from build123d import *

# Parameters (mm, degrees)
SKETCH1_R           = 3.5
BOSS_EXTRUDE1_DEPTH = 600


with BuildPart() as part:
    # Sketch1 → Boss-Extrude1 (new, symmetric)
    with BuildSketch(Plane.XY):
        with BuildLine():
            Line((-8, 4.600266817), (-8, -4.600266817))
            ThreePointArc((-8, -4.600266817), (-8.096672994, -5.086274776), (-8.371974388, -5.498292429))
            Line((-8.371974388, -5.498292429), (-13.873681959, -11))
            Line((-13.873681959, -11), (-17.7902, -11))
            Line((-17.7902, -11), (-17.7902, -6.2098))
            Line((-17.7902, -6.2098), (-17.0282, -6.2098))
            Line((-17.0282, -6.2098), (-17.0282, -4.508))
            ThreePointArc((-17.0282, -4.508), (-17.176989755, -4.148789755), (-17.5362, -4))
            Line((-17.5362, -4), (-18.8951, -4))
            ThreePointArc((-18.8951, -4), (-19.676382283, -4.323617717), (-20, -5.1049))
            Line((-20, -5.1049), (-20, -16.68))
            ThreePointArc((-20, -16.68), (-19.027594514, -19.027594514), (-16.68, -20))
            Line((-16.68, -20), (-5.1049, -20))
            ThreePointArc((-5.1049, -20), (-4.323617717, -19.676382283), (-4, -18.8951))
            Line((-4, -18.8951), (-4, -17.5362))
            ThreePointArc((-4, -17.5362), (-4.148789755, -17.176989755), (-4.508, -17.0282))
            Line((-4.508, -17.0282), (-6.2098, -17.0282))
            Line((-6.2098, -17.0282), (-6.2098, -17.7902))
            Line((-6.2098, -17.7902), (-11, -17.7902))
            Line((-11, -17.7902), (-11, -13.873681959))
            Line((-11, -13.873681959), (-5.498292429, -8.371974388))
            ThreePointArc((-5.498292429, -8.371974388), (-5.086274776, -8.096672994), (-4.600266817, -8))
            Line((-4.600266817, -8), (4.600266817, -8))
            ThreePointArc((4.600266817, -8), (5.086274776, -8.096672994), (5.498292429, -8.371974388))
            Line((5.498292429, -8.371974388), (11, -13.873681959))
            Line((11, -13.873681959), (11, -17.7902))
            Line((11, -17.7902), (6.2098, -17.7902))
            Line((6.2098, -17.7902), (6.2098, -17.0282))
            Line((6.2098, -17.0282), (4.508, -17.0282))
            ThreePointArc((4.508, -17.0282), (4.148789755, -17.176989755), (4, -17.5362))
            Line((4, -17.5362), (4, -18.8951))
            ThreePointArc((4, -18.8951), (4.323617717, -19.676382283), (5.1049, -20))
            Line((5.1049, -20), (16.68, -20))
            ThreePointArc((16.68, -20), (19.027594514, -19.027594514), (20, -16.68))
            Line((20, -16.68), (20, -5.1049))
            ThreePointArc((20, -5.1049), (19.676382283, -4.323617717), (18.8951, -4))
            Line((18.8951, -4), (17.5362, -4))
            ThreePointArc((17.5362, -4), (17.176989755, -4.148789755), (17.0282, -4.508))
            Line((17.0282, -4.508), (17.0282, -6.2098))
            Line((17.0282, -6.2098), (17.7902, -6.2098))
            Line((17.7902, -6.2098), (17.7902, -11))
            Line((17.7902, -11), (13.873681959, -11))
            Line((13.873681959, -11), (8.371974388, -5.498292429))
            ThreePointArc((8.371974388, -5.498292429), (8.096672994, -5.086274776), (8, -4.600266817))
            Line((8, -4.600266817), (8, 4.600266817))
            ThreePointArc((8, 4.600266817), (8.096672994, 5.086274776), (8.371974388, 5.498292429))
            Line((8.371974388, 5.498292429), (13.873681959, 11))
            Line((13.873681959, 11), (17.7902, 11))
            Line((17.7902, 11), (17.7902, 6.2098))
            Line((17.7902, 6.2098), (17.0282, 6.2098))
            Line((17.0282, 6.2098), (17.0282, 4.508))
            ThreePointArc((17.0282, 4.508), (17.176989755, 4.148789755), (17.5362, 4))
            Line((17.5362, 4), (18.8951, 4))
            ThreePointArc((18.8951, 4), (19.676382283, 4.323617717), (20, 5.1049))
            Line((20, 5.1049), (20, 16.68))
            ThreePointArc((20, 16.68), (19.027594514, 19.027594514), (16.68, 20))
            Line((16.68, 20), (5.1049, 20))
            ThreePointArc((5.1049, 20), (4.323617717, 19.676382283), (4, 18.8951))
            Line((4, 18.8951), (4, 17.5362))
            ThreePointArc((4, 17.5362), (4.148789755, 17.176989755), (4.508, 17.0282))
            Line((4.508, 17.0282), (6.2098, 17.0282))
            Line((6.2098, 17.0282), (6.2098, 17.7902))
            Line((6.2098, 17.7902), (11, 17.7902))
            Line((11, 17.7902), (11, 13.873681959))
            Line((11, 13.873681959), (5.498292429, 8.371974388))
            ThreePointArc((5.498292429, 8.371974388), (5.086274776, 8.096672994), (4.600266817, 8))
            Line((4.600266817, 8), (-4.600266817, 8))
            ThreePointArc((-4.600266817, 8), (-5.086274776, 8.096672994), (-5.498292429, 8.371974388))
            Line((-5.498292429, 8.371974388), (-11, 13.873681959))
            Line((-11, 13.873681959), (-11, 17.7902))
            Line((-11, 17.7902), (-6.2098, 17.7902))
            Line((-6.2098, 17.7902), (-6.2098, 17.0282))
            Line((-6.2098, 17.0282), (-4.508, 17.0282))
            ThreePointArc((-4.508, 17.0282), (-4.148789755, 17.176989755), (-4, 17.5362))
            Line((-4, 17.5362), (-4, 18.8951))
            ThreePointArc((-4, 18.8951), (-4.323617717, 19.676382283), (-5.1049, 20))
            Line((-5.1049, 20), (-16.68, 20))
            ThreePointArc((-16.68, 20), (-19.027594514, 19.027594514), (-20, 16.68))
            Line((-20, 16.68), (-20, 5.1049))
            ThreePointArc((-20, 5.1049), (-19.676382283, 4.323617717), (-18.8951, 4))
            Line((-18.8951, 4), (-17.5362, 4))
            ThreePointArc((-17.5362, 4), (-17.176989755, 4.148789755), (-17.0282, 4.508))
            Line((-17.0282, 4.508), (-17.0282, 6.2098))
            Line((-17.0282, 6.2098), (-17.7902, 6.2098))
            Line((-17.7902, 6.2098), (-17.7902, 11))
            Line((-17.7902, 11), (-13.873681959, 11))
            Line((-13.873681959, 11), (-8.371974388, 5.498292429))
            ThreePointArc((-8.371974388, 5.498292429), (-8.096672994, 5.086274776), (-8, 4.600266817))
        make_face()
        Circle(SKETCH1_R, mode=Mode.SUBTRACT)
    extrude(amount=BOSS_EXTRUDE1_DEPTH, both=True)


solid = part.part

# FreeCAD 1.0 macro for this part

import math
import FreeCAD as App
import Part
import Sketcher

V = App.Vector
Q = App.Units.Quantity

doc = App.newDocument("Part")
body = doc.addObject("PartDesign::Body", "Body")

# Sketch on XY plane
sketch1 = doc.addObject("Sketcher::SketchObject", "Sketch")
body.addObject(sketch1)
sketch1.AttachmentSupport = (doc.XY_Plane, [""])
sketch1.MapMode = "FlatFace"
sketch1.addGeometry([
    Part.LineSegment(V(-8, 4.600267, 0), V(-8, -4.600267, 0)),  # 0
    Part.ArcOfCircle(Part.Circle(V(-9.27, -4.600267, 0), V(0, 0, 1), 1.27), math.radians(-45), math.radians(0)),  # 1
    Part.LineSegment(V(-8.371974, -5.498292, 0), V(-13.873682, -11, 0)),  # 2
    Part.LineSegment(V(-13.873682, -11, 0), V(-17.7902, -11, 0)),  # 3
    Part.LineSegment(V(-17.7902, -11, 0), V(-17.7902, -6.2098, 0)),  # 4
    Part.LineSegment(V(-17.7902, -6.2098, 0), V(-17.0282, -6.2098, 0)),  # 5
    Part.LineSegment(V(-17.0282, -6.2098, 0), V(-17.0282, -4.508, 0)),  # 6
    Part.ArcOfCircle(Part.Circle(V(-17.5362, -4.508, 0), V(0, 0, 1), 0.508), math.radians(0), math.radians(90)),  # 7
    Part.LineSegment(V(-17.5362, -4, 0), V(-18.8951, -4, 0)),  # 8
    Part.ArcOfCircle(Part.Circle(V(-18.8951, -5.1049, 0), V(0, 0, 1), 1.1049), math.radians(90), math.radians(180)),  # 9
    Part.LineSegment(V(-20, -5.1049, 0), V(-20, -16.68, 0)),  # 10
    Part.ArcOfCircle(Part.Circle(V(-16.68, -16.68, 0), V(0, 0, 1), 3.32), math.radians(180), math.radians(270)),  # 11
    Part.LineSegment(V(-16.68, -20, 0), V(-5.1049, -20, 0)),  # 12
    Part.ArcOfCircle(Part.Circle(V(-5.1049, -18.8951, 0), V(0, 0, 1), 1.1049), math.radians(-90), math.radians(0)),  # 13
    Part.LineSegment(V(-4, -18.8951, 0), V(-4, -17.5362, 0)),  # 14
    Part.ArcOfCircle(Part.Circle(V(-4.508, -17.5362, 0), V(0, 0, 1), 0.508), math.radians(0), math.radians(90)),  # 15
    Part.LineSegment(V(-4.508, -17.0282, 0), V(-6.2098, -17.0282, 0)),  # 16
    Part.LineSegment(V(-6.2098, -17.0282, 0), V(-6.2098, -17.7902, 0)),  # 17
    Part.LineSegment(V(-6.2098, -17.7902, 0), V(-11, -17.7902, 0)),  # 18
    Part.LineSegment(V(-11, -17.7902, 0), V(-11, -13.873682, 0)),  # 19
    Part.LineSegment(V(-11, -13.873682, 0), V(-5.498292, -8.371974, 0)),  # 20
    Part.ArcOfCircle(Part.Circle(V(-4.600267, -9.27, 0), V(0, 0, 1), 1.27), math.radians(90), math.radians(135)),  # 21
    Part.LineSegment(V(-4.600267, -8, 0), V(4.600267, -8, 0)),  # 22
    Part.ArcOfCircle(Part.Circle(V(4.600267, -9.27, 0), V(0, 0, 1), 1.27), math.radians(45), math.radians(90)),  # 23
    Part.LineSegment(V(5.498292, -8.371974, 0), V(11, -13.873682, 0)),  # 24
    Part.LineSegment(V(11, -13.873682, 0), V(11, -17.7902, 0)),  # 25
    Part.LineSegment(V(11, -17.7902, 0), V(6.2098, -17.7902, 0)),  # 26
    Part.LineSegment(V(6.2098, -17.7902, 0), V(6.2098, -17.0282, 0)),  # 27
    Part.LineSegment(V(6.2098, -17.0282, 0), V(4.508, -17.0282, 0)),  # 28
    Part.ArcOfCircle(Part.Circle(V(4.508, -17.5362, 0), V(0, 0, 1), 0.508), math.radians(90), math.radians(180)),  # 29
    Part.LineSegment(V(4, -17.5362, 0), V(4, -18.8951, 0)),  # 30
    Part.ArcOfCircle(Part.Circle(V(5.1049, -18.8951, 0), V(0, 0, 1), 1.1049), math.radians(180), math.radians(270)),  # 31
    Part.LineSegment(V(5.1049, -20, 0), V(16.68, -20, 0)),  # 32
    Part.ArcOfCircle(Part.Circle(V(16.68, -16.68, 0), V(0, 0, 1), 3.32), math.radians(-90), math.radians(0)),  # 33
    Part.LineSegment(V(20, -16.68, 0), V(20, -5.1049, 0)),  # 34
    Part.ArcOfCircle(Part.Circle(V(18.8951, -5.1049, 0), V(0, 0, 1), 1.1049), math.radians(0), math.radians(90)),  # 35
    Part.LineSegment(V(18.8951, -4, 0), V(17.5362, -4, 0)),  # 36
    Part.ArcOfCircle(Part.Circle(V(17.5362, -4.508, 0), V(0, 0, 1), 0.508), math.radians(90), math.radians(180)),  # 37
    Part.LineSegment(V(17.0282, -4.508, 0), V(17.0282, -6.2098, 0)),  # 38
    Part.LineSegment(V(17.0282, -6.2098, 0), V(17.7902, -6.2098, 0)),  # 39
    Part.LineSegment(V(17.7902, -6.2098, 0), V(17.7902, -11, 0)),  # 40
    Part.LineSegment(V(17.7902, -11, 0), V(13.873682, -11, 0)),  # 41
    Part.LineSegment(V(13.873682, -11, 0), V(8.371974, -5.498292, 0)),  # 42
    Part.ArcOfCircle(Part.Circle(V(9.27, -4.600267, 0), V(0, 0, 1), 1.27), math.radians(-180), math.radians(-135)),  # 43
    Part.LineSegment(V(8, -4.600267, 0), V(8, 4.600267, 0)),  # 44
    Part.ArcOfCircle(Part.Circle(V(9.27, 4.600267, 0), V(0, 0, 1), 1.27), math.radians(135), math.radians(180)),  # 45
    Part.LineSegment(V(8.371974, 5.498292, 0), V(13.873682, 11, 0)),  # 46
    Part.LineSegment(V(13.873682, 11, 0), V(17.7902, 11, 0)),  # 47
    Part.LineSegment(V(17.7902, 11, 0), V(17.7902, 6.2098, 0)),  # 48
    Part.LineSegment(V(17.7902, 6.2098, 0), V(17.0282, 6.2098, 0)),  # 49
    Part.LineSegment(V(17.0282, 6.2098, 0), V(17.0282, 4.508, 0)),  # 50
    Part.ArcOfCircle(Part.Circle(V(17.5362, 4.508, 0), V(0, 0, 1), 0.508), math.radians(180), math.radians(270)),  # 51
    Part.LineSegment(V(17.5362, 4, 0), V(18.8951, 4, 0)),  # 52
    Part.ArcOfCircle(Part.Circle(V(18.8951, 5.1049, 0), V(0, 0, 1), 1.1049), math.radians(-90), math.radians(0)),  # 53
    Part.LineSegment(V(20, 5.1049, 0), V(20, 16.68, 0)),  # 54
    Part.ArcOfCircle(Part.Circle(V(16.68, 16.68, 0), V(0, 0, 1), 3.32), math.radians(0), math.radians(90)),  # 55
    Part.LineSegment(V(16.68, 20, 0), V(5.1049, 20, 0)),  # 56
    Part.ArcOfCircle(Part.Circle(V(5.1049, 18.8951, 0), V(0, 0, 1), 1.1049), math.radians(90), math.radians(180)),  # 57
    Part.LineSegment(V(4, 18.8951, 0), V(4, 17.5362, 0)),  # 58
    Part.ArcOfCircle(Part.Circle(V(4.508, 17.5362, 0), V(0, 0, 1), 0.508), math.radians(180), math.radians(270)),  # 59
    Part.LineSegment(V(4.508, 17.0282, 0), V(6.2098, 17.0282, 0)),  # 60
    Part.LineSegment(V(6.2098, 17.0282, 0), V(6.2098, 17.7902, 0)),  # 61
    Part.LineSegment(V(6.2098, 17.7902, 0), V(11, 17.7902, 0)),  # 62
    Part.LineSegment(V(11, 17.7902, 0), V(11, 13.873682, 0)),  # 63
    Part.LineSegment(V(11, 13.873682, 0), V(5.498292, 8.371974, 0)),  # 64
    Part.ArcOfCircle(Part.Circle(V(4.600267, 9.27, 0), V(0, 0, 1), 1.27), math.radians(-90), math.radians(-45)),  # 65
    Part.LineSegment(V(4.600267, 8, 0), V(-4.600267, 8, 0)),  # 66
    Part.ArcOfCircle(Part.Circle(V(-4.600267, 9.27, 0), V(0, 0, 1), 1.27), math.radians(-135), math.radians(-90)),  # 67
    Part.LineSegment(V(-5.498292, 8.371974, 0), V(-11, 13.873682, 0)),  # 68
    Part.LineSegment(V(-11, 13.873682, 0), V(-11, 17.7902, 0)),  # 69
    Part.LineSegment(V(-11, 17.7902, 0), V(-6.2098, 17.7902, 0)),  # 70
    Part.LineSegment(V(-6.2098, 17.7902, 0), V(-6.2098, 17.0282, 0)),  # 71
    Part.LineSegment(V(-6.2098, 17.0282, 0), V(-4.508, 17.0282, 0)),  # 72
    Part.ArcOfCircle(Part.Circle(V(-4.508, 17.5362, 0), V(0, 0, 1), 0.508), math.radians(-90), math.radians(0)),  # 73
    Part.LineSegment(V(-4, 17.5362, 0), V(-4, 18.8951, 0)),  # 74
    Part.ArcOfCircle(Part.Circle(V(-5.1049, 18.8951, 0), V(0, 0, 1), 1.1049), math.radians(0), math.radians(90)),  # 75
    Part.LineSegment(V(-5.1049, 20, 0), V(-16.68, 20, 0)),  # 76
    Part.ArcOfCircle(Part.Circle(V(-16.68, 16.68, 0), V(0, 0, 1), 3.32), math.radians(90), math.radians(180)),  # 77
    Part.LineSegment(V(-20, 16.68, 0), V(-20, 5.1049, 0)),  # 78
    Part.ArcOfCircle(Part.Circle(V(-18.8951, 5.1049, 0), V(0, 0, 1), 1.1049), math.radians(180), math.radians(270)),  # 79
    Part.LineSegment(V(-18.8951, 4, 0), V(-17.5362, 4, 0)),  # 80
    Part.ArcOfCircle(Part.Circle(V(-17.5362, 4.508, 0), V(0, 0, 1), 0.508), math.radians(-90), math.radians(0)),  # 81
    Part.LineSegment(V(-17.0282, 4.508, 0), V(-17.0282, 6.2098, 0)),  # 82
    Part.LineSegment(V(-17.0282, 6.2098, 0), V(-17.7902, 6.2098, 0)),  # 83
    Part.LineSegment(V(-17.7902, 6.2098, 0), V(-17.7902, 11, 0)),  # 84
    Part.LineSegment(V(-17.7902, 11, 0), V(-13.873682, 11, 0)),  # 85
    Part.LineSegment(V(-13.873682, 11, 0), V(-8.371974, 5.498292, 0)),  # 86
    Part.ArcOfCircle(Part.Circle(V(-9.27, 4.600267, 0), V(0, 0, 1), 1.27), math.radians(0), math.radians(45)),  # 87
    Part.Circle(V(0, 0, 0), V(0, 0, 1), 3.5),  # 88
], False)
sketch1.addConstraint([
    Sketcher.Constraint("Tangent", 0, 2, 1, 2),
    Sketcher.Constraint("Tangent", 1, 1, 2, 1),
    Sketcher.Constraint("Coincident", 2, 2, 3, 1),
    Sketcher.Constraint("Coincident", 3, 2, 4, 1),
    Sketcher.Constraint("Coincident", 4, 2, 5, 1),
    Sketcher.Constraint("Coincident", 5, 2, 6, 1),
    Sketcher.Constraint("Tangent", 6, 2, 7, 1),
    Sketcher.Constraint("Tangent", 7, 2, 8, 1),
    Sketcher.Constraint("Tangent", 8, 2, 9, 1),
    Sketcher.Constraint("Tangent", 9, 2, 10, 1),
    Sketcher.Constraint("Tangent", 10, 2, 11, 1),
    Sketcher.Constraint("Tangent", 11, 2, 12, 1),
    Sketcher.Constraint("Tangent", 12, 2, 13, 1),
    Sketcher.Constraint("Tangent", 13, 2, 14, 1),
    Sketcher.Constraint("Tangent", 14, 2, 15, 1),
    Sketcher.Constraint("Tangent", 15, 2, 16, 1),
    Sketcher.Constraint("Coincident", 16, 2, 17, 1),
    Sketcher.Constraint("Coincident", 17, 2, 18, 1),
    Sketcher.Constraint("Coincident", 18, 2, 19, 1),
    Sketcher.Constraint("Coincident", 19, 2, 20, 1),
    Sketcher.Constraint("Tangent", 20, 2, 21, 2),
    Sketcher.Constraint("Tangent", 21, 1, 22, 1),
    Sketcher.Constraint("Tangent", 22, 2, 23, 2),
    Sketcher.Constraint("Tangent", 23, 1, 24, 1),
    Sketcher.Constraint("Coincident", 24, 2, 25, 1),
    Sketcher.Constraint("Coincident", 25, 2, 26, 1),
    Sketcher.Constraint("Coincident", 26, 2, 27, 1),
    Sketcher.Constraint("Coincident", 27, 2, 28, 1),
    Sketcher.Constraint("Tangent", 28, 2, 29, 1),
    Sketcher.Constraint("Tangent", 29, 2, 30, 1),
    Sketcher.Constraint("Tangent", 30, 2, 31, 1),
    Sketcher.Constraint("Tangent", 31, 2, 32, 1),
    Sketcher.Constraint("Tangent", 32, 2, 33, 1),
    Sketcher.Constraint("Tangent", 33, 2, 34, 1),
    Sketcher.Constraint("Tangent", 34, 2, 35, 1),
    Sketcher.Constraint("Tangent", 35, 2, 36, 1),
    Sketcher.Constraint("Tangent", 36, 2, 37, 1),
    Sketcher.Constraint("Tangent", 37, 2, 38, 1),
    Sketcher.Constraint("Coincident", 38, 2, 39, 1),
    Sketcher.Constraint("Coincident", 39, 2, 40, 1),
    Sketcher.Constraint("Coincident", 40, 2, 41, 1),
    Sketcher.Constraint("Coincident", 41, 2, 42, 1),
    Sketcher.Constraint("Tangent", 42, 2, 43, 2),
    Sketcher.Constraint("Tangent", 43, 1, 44, 1),
    Sketcher.Constraint("Tangent", 44, 2, 45, 2),
    Sketcher.Constraint("Tangent", 45, 1, 46, 1),
    Sketcher.Constraint("Coincident", 46, 2, 47, 1),
    Sketcher.Constraint("Coincident", 47, 2, 48, 1),
    Sketcher.Constraint("Coincident", 48, 2, 49, 1),
    Sketcher.Constraint("Coincident", 49, 2, 50, 1),
    Sketcher.Constraint("Tangent", 50, 2, 51, 1),
    Sketcher.Constraint("Tangent", 51, 2, 52, 1),
    Sketcher.Constraint("Tangent", 52, 2, 53, 1),
    Sketcher.Constraint("Tangent", 53, 2, 54, 1),
    Sketcher.Constraint("Tangent", 54, 2, 55, 1),
    Sketcher.Constraint("Tangent", 55, 2, 56, 1),
    Sketcher.Constraint("Tangent", 56, 2, 57, 1),
    Sketcher.Constraint("Tangent", 57, 2, 58, 1),
    Sketcher.Constraint("Tangent", 58, 2, 59, 1),
    Sketcher.Constraint("Tangent", 59, 2, 60, 1),
    Sketcher.Constraint("Coincident", 60, 2, 61, 1),
    Sketcher.Constraint("Coincident", 61, 2, 62, 1),
    Sketcher.Constraint("Coincident", 62, 2, 63, 1),
    Sketcher.Constraint("Coincident", 63, 2, 64, 1),
    Sketcher.Constraint("Tangent", 64, 2, 65, 2),
    Sketcher.Constraint("Tangent", 65, 1, 66, 1),
    Sketcher.Constraint("Tangent", 66, 2, 67, 2),
    Sketcher.Constraint("Tangent", 67, 1, 68, 1),
    Sketcher.Constraint("Coincident", 68, 2, 69, 1),
    Sketcher.Constraint("Coincident", 69, 2, 70, 1),
    Sketcher.Constraint("Coincident", 70, 2, 71, 1),
    Sketcher.Constraint("Coincident", 71, 2, 72, 1),
    Sketcher.Constraint("Tangent", 72, 2, 73, 1),
    Sketcher.Constraint("Tangent", 73, 2, 74, 1),
    Sketcher.Constraint("Tangent", 74, 2, 75, 1),
    Sketcher.Constraint("Tangent", 75, 2, 76, 1),
    Sketcher.Constraint("Tangent", 76, 2, 77, 1),
    Sketcher.Constraint("Tangent", 77, 2, 78, 1),
    Sketcher.Constraint("Tangent", 78, 2, 79, 1),
    Sketcher.Constraint("Tangent", 79, 2, 80, 1),
    Sketcher.Constraint("Tangent", 80, 2, 81, 1),
    Sketcher.Constraint("Tangent", 81, 2, 82, 1),
    Sketcher.Constraint("Coincident", 82, 2, 83, 1),
    Sketcher.Constraint("Coincident", 83, 2, 84, 1),
    Sketcher.Constraint("Coincident", 84, 2, 85, 1),
    Sketcher.Constraint("Coincident", 85, 2, 86, 1),
    Sketcher.Constraint("Tangent", 86, 2, 87, 2),
    Sketcher.Constraint("Tangent", 87, 1, 0, 1),
    Sketcher.Constraint("Vertical", 0),
    Sketcher.Constraint("Horizontal", 3),
    Sketcher.Constraint("Vertical", 4),
    Sketcher.Constraint("Horizontal", 5),
    Sketcher.Constraint("Vertical", 6),
    Sketcher.Constraint("Horizontal", 8),
    Sketcher.Constraint("Vertical", 10),
    Sketcher.Constraint("Horizontal", 12),
    Sketcher.Constraint("Vertical", 14),
    Sketcher.Constraint("Horizontal", 16),
    Sketcher.Constraint("Vertical", 17),
    Sketcher.Constraint("Horizontal", 18),
    Sketcher.Constraint("Vertical", 19),
    Sketcher.Constraint("Horizontal", 22),
    Sketcher.Constraint("Vertical", 25),
    Sketcher.Constraint("Horizontal", 26),
    Sketcher.Constraint("Vertical", 27),
    Sketcher.Constraint("Horizontal", 28),
    Sketcher.Constraint("Vertical", 30),
    Sketcher.Constraint("Horizontal", 32),
    Sketcher.Constraint("Vertical", 34),
    Sketcher.Constraint("Horizontal", 36),
    Sketcher.Constraint("Vertical", 38),
    Sketcher.Constraint("Horizontal", 39),
    Sketcher.Constraint("Vertical", 40),
    Sketcher.Constraint("Horizontal", 41),
    Sketcher.Constraint("Vertical", 44),
    Sketcher.Constraint("Horizontal", 47),
    Sketcher.Constraint("Vertical", 48),
    Sketcher.Constraint("Horizontal", 49),
    Sketcher.Constraint("Vertical", 50),
    Sketcher.Constraint("Horizontal", 52),
    Sketcher.Constraint("Vertical", 54),
    Sketcher.Constraint("Horizontal", 56),
    Sketcher.Constraint("Vertical", 58),
    Sketcher.Constraint("Horizontal", 60),
    Sketcher.Constraint("Vertical", 61),
    Sketcher.Constraint("Horizontal", 62),
    Sketcher.Constraint("Vertical", 63),
    Sketcher.Constraint("Horizontal", 66),
    Sketcher.Constraint("Vertical", 69),
    Sketcher.Constraint("Horizontal", 70),
    Sketcher.Constraint("Vertical", 71),
    Sketcher.Constraint("Horizontal", 72),
    Sketcher.Constraint("Vertical", 74),
    Sketcher.Constraint("Horizontal", 76),
    Sketcher.Constraint("Vertical", 78),
    Sketcher.Constraint("Horizontal", 80),
    Sketcher.Constraint("Vertical", 82),
    Sketcher.Constraint("Horizontal", 83),
    Sketcher.Constraint("Vertical", 84),
    Sketcher.Constraint("Horizontal", 85),
    Sketcher.Constraint("Coincident", 88, 3, -1, 1),
    Sketcher.Constraint("Equal", 9, 13),
    Sketcher.Constraint("Equal", 7, 15),
    Sketcher.Constraint("Equal", 1, 21),
    Sketcher.Constraint("Equal", 21, 23),
    Sketcher.Constraint("Equal", 15, 29),
    Sketcher.Constraint("Equal", 13, 31),
    Sketcher.Constraint("Equal", 11, 33),
    Sketcher.Constraint("Equal", 31, 35),
    Sketcher.Constraint("Equal", 29, 37),
    Sketcher.Constraint("Equal", 23, 43),
    Sketcher.Constraint("Equal", 43, 45),
    Sketcher.Constraint("Equal", 37, 51),
    Sketcher.Constraint("Equal", 35, 53),
    Sketcher.Constraint("Equal", 33, 55),
    Sketcher.Constraint("Equal", 53, 57),
    Sketcher.Constraint("Equal", 51, 59),
    Sketcher.Constraint("Equal", 45, 65),
    Sketcher.Constraint("Equal", 65, 67),
    Sketcher.Constraint("Equal", 59, 73),
    Sketcher.Constraint("Equal", 57, 75),
    Sketcher.Constraint("Equal", 55, 77),
    Sketcher.Constraint("Equal", 75, 79),
    Sketcher.Constraint("Equal", 73, 81),
    Sketcher.Constraint("Equal", 67, 87),
    Sketcher.Constraint("Symmetric", 1, 3, 45, 3, -1, 1),
    Sketcher.Constraint("Symmetric", 7, 3, 51, 3, -1, 1),
    Sketcher.Constraint("Symmetric", 11, 3, 55, 3, -1, 1),
    Sketcher.Constraint("Symmetric", 15, 3, 59, 3, -1, 1),
    Sketcher.Constraint("Symmetric", 21, 3, 65, 3, -1, 1),
    Sketcher.Constraint("Symmetric", 29, 3, 73, 3, -1, 1),
    Sketcher.Constraint("Symmetric", 33, 3, 77, 3, -1, 1),
    Sketcher.Constraint("Symmetric", 37, 3, 81, 3, -1, 1),
    Sketcher.Constraint("Symmetric", 2, 2, 46, 2, -1, 1),
    Sketcher.Constraint("Symmetric", 4, 2, 48, 2, -1, 1),
    Sketcher.Constraint("Symmetric", 17, 2, 61, 2, -1, 1),
    Sketcher.Constraint("Symmetric", 19, 2, 63, 2, -1, 1),
    Sketcher.Constraint("Symmetric", 23, 1, 67, 1, -1, 1),
    Sketcher.Constraint("Symmetric", 25, 2, 69, 2, -1, 1),
    Sketcher.Constraint("Symmetric", 39, 2, 83, 2, -1, 1),
    Sketcher.Constraint("Symmetric", 41, 2, 85, 2, -1, 1),
    Sketcher.Constraint("Symmetric", 15, 3, 29, 3, -2),
    Sketcher.Constraint("Symmetric", 11, 3, 33, 3, -2),
    Sketcher.Constraint("Symmetric", 7, 3, 37, 3, -2),
    Sketcher.Constraint("Symmetric", 20, 2, 23, 1, -2),
    Sketcher.Constraint("Symmetric", 18, 2, 25, 2, -2),
    Sketcher.Constraint("Symmetric", 4, 2, 39, 2, -2),
    Sketcher.Constraint("Symmetric", 2, 2, 41, 2, -2),
    Sketcher.Constraint("Parallel", 2, 20),
    Sketcher.Constraint("Perpendicular", 20, 24),
    Sketcher.Constraint("Parallel", 24, 42),
    Sketcher.Constraint("Parallel", 68, 86),
    Sketcher.Constraint("Vertical", 27, 2, 60, 2),
    Sketcher.Constraint("Vertical", 17, 2, 70, 2),
    Sketcher.Constraint("Equal", 66, 0),
    Sketcher.Constraint("Equal", 70, 4),
    Sketcher.Constraint("Equal", 72, 6),
    Sketcher.Constraint("Equal", 76, 10),
    Sketcher.Constraint("Equal", 80, 14),
    Sketcher.Constraint("Equal", 83, 17),
    Sketcher.Constraint("Equal", 85, 19),
    Sketcher.Constraint("Equal", 2, 20),
    Sketcher.Constraint("Radius", 1, Q("0.05 in")),
    Sketcher.Constraint("Radius", 7, Q("0.02 in")),
    Sketcher.Constraint("DistanceX", 5, 1, 5, 2, Q("0.03 in")),
    Sketcher.Constraint("Radius", 9, Q("0.0435 in")),
    Sketcher.Constraint("Diameter", 88, Q("7 mm")),
    Sketcher.Constraint("DistanceX", 16, 2, 16, 1, Q("0.067 in")),
    Sketcher.Constraint("Radius", 11, Q("3.32 mm")),
    Sketcher.Constraint("DistanceX", 8, 2, 8, 1, Q("0.0535 in")),
    Sketcher.Constraint("DistanceX", 12, 1, 12, 2, Q("11.5751 mm")),
    Sketcher.Constraint("DistanceX", 18, 2, 18, 1, Q("4.7902 mm")),
    Sketcher.Constraint("DistanceX", 3, 2, 3, 1, Q("3.916518 mm")),
    Sketcher.Constraint("DistanceX", 1, 3, -1, 1, Q("9.27 mm")),
    Sketcher.Constraint("DistanceX", 7, 3, -1, 1, Q("17.5362 mm")),
])
pad1 = doc.addObject("PartDesign::Pad", "Pad")
body.addObject(pad1)
pad1.Profile = sketch1
pad1.Length = 1200
pad1.Midplane = True

doc.recompute()
